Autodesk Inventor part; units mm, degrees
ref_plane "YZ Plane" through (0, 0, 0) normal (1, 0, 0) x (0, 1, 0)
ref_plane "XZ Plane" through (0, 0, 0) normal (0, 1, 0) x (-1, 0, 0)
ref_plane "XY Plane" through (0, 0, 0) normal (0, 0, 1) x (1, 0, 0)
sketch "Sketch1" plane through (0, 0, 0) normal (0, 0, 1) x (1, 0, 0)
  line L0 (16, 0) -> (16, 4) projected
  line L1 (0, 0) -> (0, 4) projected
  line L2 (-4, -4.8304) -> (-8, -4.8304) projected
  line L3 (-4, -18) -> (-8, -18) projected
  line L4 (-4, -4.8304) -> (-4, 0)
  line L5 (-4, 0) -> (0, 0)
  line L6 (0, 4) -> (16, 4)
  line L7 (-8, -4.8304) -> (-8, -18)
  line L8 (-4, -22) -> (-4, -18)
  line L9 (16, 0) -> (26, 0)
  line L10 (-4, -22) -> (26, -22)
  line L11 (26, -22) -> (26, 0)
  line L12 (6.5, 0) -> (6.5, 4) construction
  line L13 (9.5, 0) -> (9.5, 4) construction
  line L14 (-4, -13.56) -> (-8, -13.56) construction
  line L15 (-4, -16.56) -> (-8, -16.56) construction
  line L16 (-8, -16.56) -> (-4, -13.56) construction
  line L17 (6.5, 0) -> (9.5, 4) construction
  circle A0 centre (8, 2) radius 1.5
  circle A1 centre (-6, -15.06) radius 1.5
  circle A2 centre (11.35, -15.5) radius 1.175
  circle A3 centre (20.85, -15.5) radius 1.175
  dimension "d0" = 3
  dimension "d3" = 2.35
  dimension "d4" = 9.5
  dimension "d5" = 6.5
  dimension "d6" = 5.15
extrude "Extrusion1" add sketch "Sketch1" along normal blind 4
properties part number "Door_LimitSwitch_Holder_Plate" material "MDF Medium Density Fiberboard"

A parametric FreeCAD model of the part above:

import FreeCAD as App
import Part
import Sketcher

V = App.Vector

doc = App.newDocument("Part")
body = doc.addObject("PartDesign::Body", "Body")

sketch1 = body.newObject("Sketcher::SketchObject", "Sketch")
sketch1.AttachmentSupport = (doc.getObject("XY_Plane"), [""])
sketch1.MapMode = "FlatFace"
sketch1.addGeometry([
    Part.LineSegment(V(26, 0, 0), V(16, 0, 0)),
    Part.LineSegment(V(16, 0, 0), V(16, 4, 0)),
    Part.LineSegment(V(16, 4, 0), V(0, 4, 0)),
    Part.LineSegment(V(0, 4, 0), V(0, 0, 0)),
    Part.LineSegment(V(0, 0, 0), V(-4, 0, 0)),
    Part.LineSegment(V(-4, 0, 0), V(-4, -4.8, 0)),
    Part.LineSegment(V(-4, -4.8, 0), V(-8, -4.8, 0)),
    Part.LineSegment(V(-8, -4.8, 0), V(-8, -18, 0)),
    Part.LineSegment(V(-8, -18, 0), V(-4, -18, 0)),
    Part.LineSegment(V(-4, -18, 0), V(-4, -22, 0)),
    Part.LineSegment(V(-4, -22, 0), V(26, -22, 0)),
    Part.LineSegment(V(26, -22, 0), V(26, 0, 0)),
    Part.Circle(V(-6, -15.1, 0), V(0, 0, 1), 1.5),
    Part.Circle(V(11.3, -15.5, 0), V(0, 0, 1), 1.2),
    Part.Circle(V(20.9, -15.5, 0), V(0, 0, 1), 1.2),
    Part.Circle(V(8, 2, 0), V(0, 0, 1), 1.5),
], False)
sketch1.addConstraint([
    Sketcher.Constraint("Coincident", 0, 2, 1, 1),
    Sketcher.Constraint("Coincident", 1, 2, 2, 1),
    Sketcher.Constraint("Coincident", 2, 2, 3, 1),
    Sketcher.Constraint("Coincident", 3, 2, 4, 1),
    Sketcher.Constraint("Coincident", 4, 2, 5, 1),
    Sketcher.Constraint("Coincident", 5, 2, 6, 1),
    Sketcher.Constraint("Coincident", 6, 2, 7, 1),
    Sketcher.Constraint("Coincident", 7, 2, 8, 1),
    Sketcher.Constraint("Coincident", 8, 2, 9, 1),
    Sketcher.Constraint("Coincident", 9, 2, 10, 1),
    Sketcher.Constraint("Coincident", 10, 2, 11, 1),
    Sketcher.Constraint("Coincident", 11, 2, 0, 1),
    Sketcher.Constraint("Horizontal", 0),
    Sketcher.Constraint("Vertical", 1),
    Sketcher.Constraint("Horizontal", 2),
    Sketcher.Constraint("Vertical", 3),
    Sketcher.Constraint("Horizontal", 4),
    Sketcher.Constraint("Vertical", 5),
    Sketcher.Constraint("Horizontal", 6),
    Sketcher.Constraint("Vertical", 7),
    Sketcher.Constraint("Horizontal", 8),
    Sketcher.Constraint("Vertical", 9),
    Sketcher.Constraint("Horizontal", 10),
    Sketcher.Constraint("Vertical", 11),
    Sketcher.Constraint("Coincident", 3, 2, -1, 1),
    Sketcher.Constraint("Equal", 13, 14),
    Sketcher.Constraint("Equal", 12, 15),
    Sketcher.Constraint("PointOnObject", 0, 2, -1),
    Sketcher.Constraint("Horizontal", 13, 3, 14, 3),
    Sketcher.Constraint("Vertical", 5, 2, 8, 2),
    Sketcher.Constraint("Equal", 4, 6),
    Sketcher.Constraint("Equal", 8, 1),
    Sketcher.Constraint("Equal", 3, 9),
    Sketcher.Constraint("Diameter", 12, 3.0),
    Sketcher.Constraint("Diameter", 13, 2.35),
    Sketcher.Constraint("DistanceX", 13, 3, 14, 3, 9.5),
    Sketcher.Constraint("DistanceY", 9, 2, 13, 3, 6.5),
    Sketcher.Constraint("DistanceX", 0, 2, 0, 1, 10.0),
    Sketcher.Constraint("DistanceX", 2, 2, 2, 1, 16.0),
    Sketcher.Constraint("DistanceX", 4, 2, 4, 1, 4.0),
    Sketcher.Constraint("DistanceY", 11, 1, 11, 2, 22.0),
    Sketcher.Constraint("DistanceX", 14, 3, 10, 2, 5.15),
    Sketcher.Constraint("DistanceX", 12, 3, -1, 1, 6.0),
    Sketcher.Constraint("DistanceX", -1, 1, 15, 3, 8.0),
    Sketcher.Constraint("DistanceY", -1, 1, 15, 3, 2.0),
    Sketcher.Constraint("DistanceY", 12, 3, -1, 1, 15.06),
    Sketcher.Constraint("DistanceY", 5, 2, 5, 1, 4.8304),
])
pad1 = body.newObject("PartDesign::Pad", "Pad")
pad1.Profile = sketch1
pad1.Length = 4

doc.recompute()
